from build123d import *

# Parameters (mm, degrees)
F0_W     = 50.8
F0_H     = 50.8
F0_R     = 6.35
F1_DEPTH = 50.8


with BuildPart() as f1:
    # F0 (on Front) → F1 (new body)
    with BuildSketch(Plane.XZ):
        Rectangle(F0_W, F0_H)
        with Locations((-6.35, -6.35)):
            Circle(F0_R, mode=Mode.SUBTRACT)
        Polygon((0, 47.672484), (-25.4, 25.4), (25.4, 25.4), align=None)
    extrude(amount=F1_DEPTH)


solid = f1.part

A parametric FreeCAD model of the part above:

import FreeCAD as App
import Part
import Sketcher

V = App.Vector
Q = App.Units.Quantity

doc = App.newDocument("Part")
params = doc.addObject("Spreadsheet::Sheet", "Params")
for row, (alias, value) in enumerate([
    ("sketch1_diameter", "0.5 in"),
    ("sketch1_width", "2 in"),
    ("sketch1_length", "1.33 in"),
    ("pad1_length", "2 in"),
], start=1):
    params.set(f"A{row}", alias)
    params.set(f"B{row}", "=" + value)
    params.setAlias(f"B{row}", alias)

body = doc.addObject("PartDesign::Body", "Body")

sketch1 = body.newObject("Sketcher::SketchObject", "Sketch")
sketch1.AttachmentSupport = (doc.getObject("XZ_Plane"), [""])
sketch1.MapMode = "FlatFace"
sketch1.addGeometry([
    Part.LineSegment(V(-25.4, 25.4, 0), V(-25.4, -25.4, 0)),
    Part.LineSegment(V(-25.4, -25.4, 0), V(25.4, -25.4, 0)),
    Part.LineSegment(V(25.4, -25.4, 0), V(25.4, 25.4, 0)),
    Part.LineSegment(V(25.4, 25.4, 0), V(0, 47.672484, 0)),
    Part.LineSegment(V(0, 47.672484, 0), V(-25.4, 25.4, 0)),
    Part.Circle(V(-6.35, -6.35, 0), V(0, 0, 1), 6.35),
], False)
sketch1.addConstraint([
    Sketcher.Constraint("Coincident", 0, 2, 1, 1),
    Sketcher.Constraint("Coincident", 1, 2, 2, 1),
    Sketcher.Constraint("Coincident", 2, 2, 3, 1),
    Sketcher.Constraint("Coincident", 3, 2, 4, 1),
    Sketcher.Constraint("Coincident", 4, 2, 0, 1),
    Sketcher.Constraint("Vertical", 0),
    Sketcher.Constraint("Horizontal", 1),
    Sketcher.Constraint("Vertical", 2),
    Sketcher.Constraint("Symmetric", 0, 2, 2, 2, -1, 1),
    Sketcher.Constraint("PointOnObject", 3, 2, -2),
    Sketcher.Constraint("Horizontal", 2, 2, 4, 2),
    Sketcher.Constraint("Equal", 1, 0),
    Sketcher.Constraint("Diameter", 5, Q("0.5 in")),
    Sketcher.Constraint("DistanceX", 1, 1, 1, 2, Q("2 in")),
    Sketcher.Constraint("Distance", 3, Q("1.33 in")),
    Sketcher.Constraint("DistanceX", 5, 3, -1, 1, Q("0.25 in")),
    Sketcher.Constraint("DistanceY", 5, 3, -1, 1, Q("0.25 in")),
])
sketch1.setExpression("Constraints[12]", "Params.sketch1_diameter")
sketch1.setExpression("Constraints[13]", "Params.sketch1_width")
sketch1.setExpression("Constraints[14]", "Params.sketch1_length")
pad1 = body.newObject("PartDesign::Pad", "Pad")
pad1.Profile = sketch1
pad1.setExpression("Length", "Params.pad1_length")

doc.recompute()
